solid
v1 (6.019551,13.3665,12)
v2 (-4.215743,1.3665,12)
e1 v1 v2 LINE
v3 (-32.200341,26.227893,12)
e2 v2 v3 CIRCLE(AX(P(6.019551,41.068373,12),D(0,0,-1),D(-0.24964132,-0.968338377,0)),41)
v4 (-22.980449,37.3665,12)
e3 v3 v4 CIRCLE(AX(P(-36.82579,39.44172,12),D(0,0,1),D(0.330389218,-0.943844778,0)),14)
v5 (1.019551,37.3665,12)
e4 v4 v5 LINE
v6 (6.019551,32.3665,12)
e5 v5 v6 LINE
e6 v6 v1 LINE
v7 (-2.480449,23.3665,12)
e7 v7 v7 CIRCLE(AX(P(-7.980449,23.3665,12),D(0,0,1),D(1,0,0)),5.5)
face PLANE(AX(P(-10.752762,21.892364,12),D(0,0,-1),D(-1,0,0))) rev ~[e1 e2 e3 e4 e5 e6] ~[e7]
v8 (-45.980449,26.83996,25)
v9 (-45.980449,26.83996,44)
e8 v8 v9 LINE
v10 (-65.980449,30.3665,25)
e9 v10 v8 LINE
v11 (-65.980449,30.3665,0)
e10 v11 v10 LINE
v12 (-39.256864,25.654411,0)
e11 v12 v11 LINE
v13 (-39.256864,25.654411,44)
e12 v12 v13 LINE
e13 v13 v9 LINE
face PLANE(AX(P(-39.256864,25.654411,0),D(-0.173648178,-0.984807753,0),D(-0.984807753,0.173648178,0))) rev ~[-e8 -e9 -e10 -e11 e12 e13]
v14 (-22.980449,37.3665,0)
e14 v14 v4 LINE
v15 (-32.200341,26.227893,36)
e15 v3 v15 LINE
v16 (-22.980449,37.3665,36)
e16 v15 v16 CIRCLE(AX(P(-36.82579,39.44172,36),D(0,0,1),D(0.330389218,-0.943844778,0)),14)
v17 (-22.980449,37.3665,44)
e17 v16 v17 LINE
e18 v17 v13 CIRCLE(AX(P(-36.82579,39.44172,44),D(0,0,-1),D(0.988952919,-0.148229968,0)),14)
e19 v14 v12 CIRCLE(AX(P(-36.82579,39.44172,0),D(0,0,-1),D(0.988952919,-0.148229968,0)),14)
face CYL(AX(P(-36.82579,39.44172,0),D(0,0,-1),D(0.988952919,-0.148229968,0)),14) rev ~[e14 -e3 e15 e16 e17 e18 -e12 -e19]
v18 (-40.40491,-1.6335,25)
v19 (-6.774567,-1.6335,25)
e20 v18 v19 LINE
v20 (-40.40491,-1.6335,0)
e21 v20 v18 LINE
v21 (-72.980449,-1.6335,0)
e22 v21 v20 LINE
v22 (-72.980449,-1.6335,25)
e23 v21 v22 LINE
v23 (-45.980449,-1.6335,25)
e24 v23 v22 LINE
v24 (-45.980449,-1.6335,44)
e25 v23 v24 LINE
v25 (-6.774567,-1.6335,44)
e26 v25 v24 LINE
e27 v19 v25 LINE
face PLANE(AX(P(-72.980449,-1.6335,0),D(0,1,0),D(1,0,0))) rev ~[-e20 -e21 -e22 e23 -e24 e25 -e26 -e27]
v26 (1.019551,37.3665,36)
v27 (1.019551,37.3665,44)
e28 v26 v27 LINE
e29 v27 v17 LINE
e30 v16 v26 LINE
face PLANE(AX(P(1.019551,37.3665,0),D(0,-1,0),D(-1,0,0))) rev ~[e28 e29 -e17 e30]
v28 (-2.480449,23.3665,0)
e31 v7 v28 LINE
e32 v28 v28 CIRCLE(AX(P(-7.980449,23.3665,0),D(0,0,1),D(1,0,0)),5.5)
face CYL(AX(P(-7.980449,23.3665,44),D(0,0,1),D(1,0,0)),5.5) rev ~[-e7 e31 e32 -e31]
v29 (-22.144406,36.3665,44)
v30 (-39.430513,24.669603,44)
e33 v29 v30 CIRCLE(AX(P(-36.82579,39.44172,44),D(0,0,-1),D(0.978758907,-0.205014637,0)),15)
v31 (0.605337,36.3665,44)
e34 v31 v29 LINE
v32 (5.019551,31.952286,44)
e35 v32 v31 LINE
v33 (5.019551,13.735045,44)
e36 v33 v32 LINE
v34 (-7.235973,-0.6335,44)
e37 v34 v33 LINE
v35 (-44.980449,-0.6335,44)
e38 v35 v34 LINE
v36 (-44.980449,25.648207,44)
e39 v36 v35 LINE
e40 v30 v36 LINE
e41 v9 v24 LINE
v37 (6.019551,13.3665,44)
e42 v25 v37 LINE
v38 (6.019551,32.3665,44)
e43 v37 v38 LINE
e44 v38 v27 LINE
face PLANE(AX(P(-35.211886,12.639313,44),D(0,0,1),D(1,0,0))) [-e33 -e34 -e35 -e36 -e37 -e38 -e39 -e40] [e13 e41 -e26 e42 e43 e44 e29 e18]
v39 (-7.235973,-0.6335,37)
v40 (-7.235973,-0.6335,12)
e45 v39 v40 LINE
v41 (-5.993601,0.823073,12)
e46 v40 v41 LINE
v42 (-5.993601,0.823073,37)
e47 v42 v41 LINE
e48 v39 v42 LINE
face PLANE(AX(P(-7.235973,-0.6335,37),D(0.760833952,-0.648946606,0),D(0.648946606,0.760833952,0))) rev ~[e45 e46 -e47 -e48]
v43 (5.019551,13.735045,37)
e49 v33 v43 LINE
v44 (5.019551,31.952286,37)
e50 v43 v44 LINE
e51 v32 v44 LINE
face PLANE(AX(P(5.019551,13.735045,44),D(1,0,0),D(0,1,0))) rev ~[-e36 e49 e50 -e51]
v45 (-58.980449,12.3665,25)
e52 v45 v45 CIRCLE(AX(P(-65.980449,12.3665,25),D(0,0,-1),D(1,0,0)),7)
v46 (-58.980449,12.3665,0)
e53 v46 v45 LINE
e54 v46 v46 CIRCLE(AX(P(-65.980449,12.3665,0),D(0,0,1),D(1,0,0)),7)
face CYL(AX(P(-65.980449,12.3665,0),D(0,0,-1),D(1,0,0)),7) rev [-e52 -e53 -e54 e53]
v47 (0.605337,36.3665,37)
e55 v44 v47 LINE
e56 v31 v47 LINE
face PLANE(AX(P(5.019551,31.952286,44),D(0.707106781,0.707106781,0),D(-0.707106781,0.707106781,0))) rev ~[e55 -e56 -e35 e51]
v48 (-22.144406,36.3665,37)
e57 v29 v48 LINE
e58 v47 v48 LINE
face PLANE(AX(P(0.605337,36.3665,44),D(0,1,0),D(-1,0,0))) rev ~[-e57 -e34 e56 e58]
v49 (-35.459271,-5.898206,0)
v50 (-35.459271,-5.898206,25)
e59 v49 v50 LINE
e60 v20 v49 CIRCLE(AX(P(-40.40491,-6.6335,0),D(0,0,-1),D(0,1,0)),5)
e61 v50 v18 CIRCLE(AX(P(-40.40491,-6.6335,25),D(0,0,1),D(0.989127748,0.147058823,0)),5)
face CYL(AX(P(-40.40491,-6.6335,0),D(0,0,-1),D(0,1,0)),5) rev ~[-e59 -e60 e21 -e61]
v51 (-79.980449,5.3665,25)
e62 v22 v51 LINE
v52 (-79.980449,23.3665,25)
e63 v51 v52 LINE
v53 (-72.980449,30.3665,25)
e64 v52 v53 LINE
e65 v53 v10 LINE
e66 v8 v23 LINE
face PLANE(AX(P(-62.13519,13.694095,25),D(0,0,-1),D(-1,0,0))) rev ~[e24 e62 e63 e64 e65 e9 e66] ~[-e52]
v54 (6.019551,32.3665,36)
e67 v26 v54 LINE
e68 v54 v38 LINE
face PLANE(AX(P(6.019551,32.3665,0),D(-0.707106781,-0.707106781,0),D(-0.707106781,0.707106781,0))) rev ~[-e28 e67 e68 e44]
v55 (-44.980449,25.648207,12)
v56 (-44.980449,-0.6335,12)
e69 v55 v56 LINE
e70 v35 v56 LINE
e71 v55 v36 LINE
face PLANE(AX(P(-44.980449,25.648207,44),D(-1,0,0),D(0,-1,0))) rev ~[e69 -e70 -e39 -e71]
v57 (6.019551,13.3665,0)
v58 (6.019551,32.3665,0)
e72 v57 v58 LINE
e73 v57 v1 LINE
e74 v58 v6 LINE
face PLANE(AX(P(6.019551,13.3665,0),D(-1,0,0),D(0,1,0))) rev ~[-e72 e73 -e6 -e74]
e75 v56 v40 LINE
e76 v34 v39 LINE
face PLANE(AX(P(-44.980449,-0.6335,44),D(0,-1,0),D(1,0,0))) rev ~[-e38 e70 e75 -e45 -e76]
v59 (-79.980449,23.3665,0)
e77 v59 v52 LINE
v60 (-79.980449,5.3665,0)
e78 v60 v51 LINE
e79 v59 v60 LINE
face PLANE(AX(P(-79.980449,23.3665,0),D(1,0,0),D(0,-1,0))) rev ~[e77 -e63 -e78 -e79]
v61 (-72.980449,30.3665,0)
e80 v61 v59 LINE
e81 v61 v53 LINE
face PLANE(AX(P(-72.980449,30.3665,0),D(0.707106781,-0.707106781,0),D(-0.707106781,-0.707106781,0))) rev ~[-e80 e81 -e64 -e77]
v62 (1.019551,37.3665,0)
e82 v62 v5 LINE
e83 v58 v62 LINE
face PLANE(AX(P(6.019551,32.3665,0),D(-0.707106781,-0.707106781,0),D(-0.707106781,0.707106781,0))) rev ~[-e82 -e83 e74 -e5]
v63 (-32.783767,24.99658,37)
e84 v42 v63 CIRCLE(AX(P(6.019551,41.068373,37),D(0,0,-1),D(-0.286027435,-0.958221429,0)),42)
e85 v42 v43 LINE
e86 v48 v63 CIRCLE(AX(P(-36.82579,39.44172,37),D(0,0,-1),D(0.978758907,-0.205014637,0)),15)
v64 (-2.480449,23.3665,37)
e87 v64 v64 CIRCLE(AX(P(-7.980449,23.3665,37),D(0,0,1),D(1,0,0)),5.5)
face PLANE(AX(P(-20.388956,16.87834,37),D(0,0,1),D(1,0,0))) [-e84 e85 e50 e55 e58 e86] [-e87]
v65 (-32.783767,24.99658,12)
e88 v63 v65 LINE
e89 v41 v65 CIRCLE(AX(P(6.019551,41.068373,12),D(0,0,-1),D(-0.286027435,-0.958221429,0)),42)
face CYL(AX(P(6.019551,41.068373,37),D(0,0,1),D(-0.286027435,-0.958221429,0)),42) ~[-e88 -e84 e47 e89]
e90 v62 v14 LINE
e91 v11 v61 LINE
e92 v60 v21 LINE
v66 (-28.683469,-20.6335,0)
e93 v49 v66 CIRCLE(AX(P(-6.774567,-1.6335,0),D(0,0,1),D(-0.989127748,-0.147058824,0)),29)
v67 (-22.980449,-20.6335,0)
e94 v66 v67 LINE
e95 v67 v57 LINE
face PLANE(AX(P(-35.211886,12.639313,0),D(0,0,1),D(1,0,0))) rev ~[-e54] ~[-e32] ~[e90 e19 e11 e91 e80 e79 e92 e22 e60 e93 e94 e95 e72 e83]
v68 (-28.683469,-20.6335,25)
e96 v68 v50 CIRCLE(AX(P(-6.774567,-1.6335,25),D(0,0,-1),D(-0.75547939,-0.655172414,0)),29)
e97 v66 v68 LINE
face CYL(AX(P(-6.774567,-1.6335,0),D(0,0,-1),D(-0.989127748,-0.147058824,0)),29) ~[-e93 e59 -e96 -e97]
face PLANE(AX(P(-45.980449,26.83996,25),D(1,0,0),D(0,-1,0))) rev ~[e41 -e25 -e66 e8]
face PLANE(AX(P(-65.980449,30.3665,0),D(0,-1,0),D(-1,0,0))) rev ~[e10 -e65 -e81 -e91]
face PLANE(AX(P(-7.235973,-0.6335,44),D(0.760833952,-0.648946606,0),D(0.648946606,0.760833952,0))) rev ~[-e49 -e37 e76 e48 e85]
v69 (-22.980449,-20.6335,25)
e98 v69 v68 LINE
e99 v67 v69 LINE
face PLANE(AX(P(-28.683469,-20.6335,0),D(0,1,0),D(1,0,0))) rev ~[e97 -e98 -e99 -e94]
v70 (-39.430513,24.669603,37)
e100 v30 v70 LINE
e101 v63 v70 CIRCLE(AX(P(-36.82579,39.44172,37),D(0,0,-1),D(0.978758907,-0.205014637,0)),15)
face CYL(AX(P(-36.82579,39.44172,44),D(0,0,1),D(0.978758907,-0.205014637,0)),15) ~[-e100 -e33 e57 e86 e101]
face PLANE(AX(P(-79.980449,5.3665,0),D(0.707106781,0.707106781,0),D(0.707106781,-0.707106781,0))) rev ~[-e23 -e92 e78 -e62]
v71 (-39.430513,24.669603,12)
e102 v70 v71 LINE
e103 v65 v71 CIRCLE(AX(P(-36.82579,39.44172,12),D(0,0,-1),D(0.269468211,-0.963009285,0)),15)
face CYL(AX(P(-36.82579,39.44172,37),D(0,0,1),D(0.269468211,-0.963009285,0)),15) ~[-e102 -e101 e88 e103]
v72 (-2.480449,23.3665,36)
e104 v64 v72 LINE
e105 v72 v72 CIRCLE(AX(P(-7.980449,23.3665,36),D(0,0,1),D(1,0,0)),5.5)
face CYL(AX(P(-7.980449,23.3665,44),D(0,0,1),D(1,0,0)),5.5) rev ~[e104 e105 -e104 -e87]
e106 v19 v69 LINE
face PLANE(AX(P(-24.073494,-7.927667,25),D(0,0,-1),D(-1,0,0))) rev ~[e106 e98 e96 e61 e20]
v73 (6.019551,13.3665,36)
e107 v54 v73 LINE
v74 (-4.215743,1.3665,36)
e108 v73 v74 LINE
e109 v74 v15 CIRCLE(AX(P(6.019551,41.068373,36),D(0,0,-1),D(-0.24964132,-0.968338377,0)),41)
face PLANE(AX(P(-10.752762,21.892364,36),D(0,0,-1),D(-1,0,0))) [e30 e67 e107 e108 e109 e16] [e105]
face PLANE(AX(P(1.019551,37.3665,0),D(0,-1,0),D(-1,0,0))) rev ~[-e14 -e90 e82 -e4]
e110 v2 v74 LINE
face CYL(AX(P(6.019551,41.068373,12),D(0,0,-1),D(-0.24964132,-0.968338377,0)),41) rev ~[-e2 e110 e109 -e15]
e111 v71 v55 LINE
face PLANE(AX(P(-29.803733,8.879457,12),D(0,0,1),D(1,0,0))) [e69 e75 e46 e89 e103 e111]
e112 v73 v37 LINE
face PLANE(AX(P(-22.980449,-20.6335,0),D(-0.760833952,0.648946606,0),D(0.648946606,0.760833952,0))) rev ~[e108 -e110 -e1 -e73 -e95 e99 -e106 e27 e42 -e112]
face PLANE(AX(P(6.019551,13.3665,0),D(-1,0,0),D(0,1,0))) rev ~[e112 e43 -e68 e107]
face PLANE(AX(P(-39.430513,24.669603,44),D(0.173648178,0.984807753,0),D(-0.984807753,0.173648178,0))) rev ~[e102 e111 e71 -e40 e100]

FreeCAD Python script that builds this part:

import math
import FreeCAD as App
import Part
import Sketcher
Q = App.Units.Quantity


def add_polygon(sketch, points):
    """Adds a closed chain of lines whose ends are joined by coincident constraints."""
    first, n = sketch.GeometryCount, len(points)
    for a, b in zip(points, points[1:] + points[:1]):
        sketch.addGeometry(Part.LineSegment(App.Vector(*a, 0), App.Vector(*b, 0)), False)
    for i in range(n):
        sketch.addConstraint(Sketcher.Constraint("Coincident", first + i, 2, first + (i + 1) % n, 1))

doc = App.newDocument("Part")
body = doc.addObject("PartDesign::Body", "Body")

sketch1 = body.newObject("Sketcher::SketchObject", "Sketch")
sketch1.AttachmentSupport = (doc.getObject("XY_Plane"), [""])
sketch1.MapMode = "FlatFace"
sketch1.addGeometry([
    Part.ArcOfCircle(Part.Circle(App.Vector(-40, -7, 0), App.Vector(0, 0, 1), 5), math.radians(8), math.radians(90)),
    Part.ArcOfCircle(Part.Circle(App.Vector(-7, -2, 0), App.Vector(0, 0, 1), 29), math.radians(-172), math.radians(-139)),
    Part.LineSegment(App.Vector(-29, -21, 0), App.Vector(-23, -21, 0)),
    Part.LineSegment(App.Vector(-23, -21, 0), App.Vector(6, 13, 0)),
    Part.LineSegment(App.Vector(6, 13, 0), App.Vector(6, 32, 0)),
    Part.LineSegment(App.Vector(6, 32, 0), App.Vector(1, 37, 0)),
    Part.LineSegment(App.Vector(1, 37, 0), App.Vector(-23, 37, 0)),
    Part.ArcOfCircle(Part.Circle(App.Vector(-37, 39, 0), App.Vector(0, 0, 1), 14), math.radians(-100), math.radians(-9)),
    Part.LineSegment(App.Vector(-39, 26, 0), App.Vector(-66, 30, 0)),
    Part.LineSegment(App.Vector(-66, 30, 0), App.Vector(-73, 30, 0)),
    Part.LineSegment(App.Vector(-73, 30, 0), App.Vector(-80, 23, 0)),
    Part.LineSegment(App.Vector(-80, 23, 0), App.Vector(-80, 5, 0)),
    Part.LineSegment(App.Vector(-80, 5, 0), App.Vector(-73, -2, 0)),
    Part.LineSegment(App.Vector(-73, -2, 0), App.Vector(-40, -2, 0)),
    Part.Circle(App.Vector(-66, 12, 0), App.Vector(0, 0, 1), 7),
], False)
sketch1.addConstraint([
    Sketcher.Constraint("Tangent", 0, 1, 1, 1),
    Sketcher.Constraint("Coincident", 1, 2, 2, 1),
    Sketcher.Constraint("Coincident", 2, 2, 3, 1),
    Sketcher.Constraint("Coincident", 3, 2, 4, 1),
    Sketcher.Constraint("Coincident", 4, 2, 5, 1),
    Sketcher.Constraint("Coincident", 5, 2, 6, 1),
    Sketcher.Constraint("Coincident", 6, 2, 7, 2),
    Sketcher.Constraint("Tangent", 7, 1, 8, 1),
    Sketcher.Constraint("Coincident", 8, 2, 9, 1),
    Sketcher.Constraint("Coincident", 9, 2, 10, 1),
    Sketcher.Constraint("Coincident", 10, 2, 11, 1),
    Sketcher.Constraint("Coincident", 11, 2, 12, 1),
    Sketcher.Constraint("Coincident", 12, 2, 13, 1),
    Sketcher.Constraint("Tangent", 13, 2, 0, 2),
    Sketcher.Constraint("Horizontal", 2),
    Sketcher.Constraint("Vertical", 4),
    Sketcher.Constraint("Horizontal", 6),
    Sketcher.Constraint("Horizontal", 9),
    Sketcher.Constraint("Vertical", 11),
    Sketcher.Constraint("Horizontal", 13),
    Sketcher.Constraint("Perpendicular", 5, 10),
    Sketcher.Constraint("Perpendicular", 10, 12),
    Sketcher.Constraint("Horizontal", 1, 3, 12, 2),
    Sketcher.Constraint("Vertical", 2, 2, 6, 2),
    Sketcher.Constraint("Vertical", 14, 3, 8, 2),
    Sketcher.Constraint("Vertical", 9, 2, 12, 2),
    Sketcher.Constraint("Equal", 10, 12),
    Sketcher.Constraint("Diameter", 14, Q("14 mm")),
    Sketcher.Constraint("Radius", 0, Q("5 mm")),
    Sketcher.Constraint("Radius", 1, Q("29 mm")),
    Sketcher.Constraint("Radius", 7, Q("14 mm")),
    Sketcher.Constraint("DistanceX", 6, 2, 6, 1, Q("24 mm")),
    Sketcher.Constraint("DistanceX", 9, 2, 9, 1, Q("7 mm")),
    Sketcher.Constraint("DistanceY", 4, 1, 4, 2, Q("19 mm")),
    Sketcher.Constraint("DistanceY", 11, 2, 11, 1, Q("18 mm")),
    Sketcher.Constraint("Angle", 8, Q("170 deg")),
    Sketcher.Constraint("DistanceY", 0, 3, 14, 3, Q("19 mm")),
    Sketcher.Constraint("DistanceY", 1, 2, 0, 3, Q("14 mm")),
    Sketcher.Constraint("DistanceX", 14, 3, 2, 2, Q("43 mm")),
    Sketcher.Constraint("DistanceY", 1, 3, 3, 2, Q("15 mm")),
    Sketcher.Constraint("DistanceX", 2, 2, 3, 2, Q("29 mm")),
    Sketcher.Constraint("DistanceY", 14, 3, 8, 2, Q("18 mm")),
    Sketcher.Constraint("DistanceX", 2, 1, 2, 2, Q("5.70302 mm")),
    Sketcher.Constraint("DistanceY", 0, 3, -1, 1, Q("6.6335 mm")),
    Sketcher.Constraint("DistanceX", 0, 3, -1, 1, Q("40.40491 mm")),
])
pad1 = body.newObject("PartDesign::Pad", "Pad")
pad1.Profile = sketch1
pad1.Length = 44

sketch2 = body.newObject("Sketcher::SketchObject", "Sketch001")
sketch2.AttachmentSupport = (doc.getObject("XY_Plane"), [""])
sketch2.MapMode = "FlatFace"
sketch2.AttachmentOffset = App.Placement(App.Vector(0, 0, 44), App.Rotation())
sketch2.addGeometry(Part.Circle(App.Vector(-8, 23, 0), App.Vector(0, 0, 1), 6), False)
sketch2.addConstraint([
    Sketcher.Constraint("Diameter", 0, Q("11 mm")),
    Sketcher.Constraint("DistanceY", -1, 1, 0, 3, Q("23.3665 mm")),
    Sketcher.Constraint("DistanceX", 0, 3, -1, 1, Q("7.980449 mm")),
])
pocket1 = body.newObject("PartDesign::Pocket", "Pocket")
pocket1.Profile = sketch2
pocket1.Type = "ThroughAll"

sketch3 = body.newObject("Sketcher::SketchObject", "Sketch002")
sketch3.AttachmentSupport = (doc.getObject("XY_Plane"), [""])
sketch3.MapMode = "FlatFace"
sketch3.AttachmentOffset = App.Placement(App.Vector(0, 0, 25), App.Rotation())
add_polygon(sketch3, [(-46, -2), (-46, 27), (-66, 30), (-73, 30), (-80, 23), (-80, 5), (-73, -2)])
sketch3.addGeometry(Part.LineSegment(App.Vector(-7, -2, 0), App.Vector(-40, -2, 0)), False)
sketch3.addGeometry(Part.ArcOfCircle(Part.Circle(App.Vector(-40, -7, 0), App.Vector(0, 0, 1), 5), math.radians(8), math.radians(90)), False)
sketch3.addGeometry(Part.ArcOfCircle(Part.Circle(App.Vector(-7, -2, 0), App.Vector(0, 0, 1), 29), math.radians(-172), math.radians(-139)), False)
sketch3.addGeometry(Part.LineSegment(App.Vector(-29, -21, 0), App.Vector(-23, -21, 0)), False)
sketch3.addGeometry(Part.LineSegment(App.Vector(-23, -21, 0), App.Vector(-7, -2, 0)), False)
sketch3.addConstraint([
    Sketcher.Constraint("Tangent", 7, 2, 8, 2),
    Sketcher.Constraint("Tangent", 8, 1, 9, 1),
    Sketcher.Constraint("Coincident", 9, 2, 10, 1),
    Sketcher.Constraint("Coincident", 10, 2, 11, 1),
    Sketcher.Constraint("Coincident", 11, 2, 7, 1),
    Sketcher.Constraint("Vertical", 0),
    Sketcher.Constraint("Horizontal", 2),
    Sketcher.Constraint("Vertical", 4),
    Sketcher.Constraint("Horizontal", 6),
    Sketcher.Constraint("Horizontal", 7),
    Sketcher.Constraint("Horizontal", 10),
    Sketcher.Constraint("Coincident", 11, 2, 9, 3),
    Sketcher.Constraint("Perpendicular", 3, 5),
    Sketcher.Constraint("Horizontal", 9, 3, 5, 2),
    Sketcher.Constraint("Vertical", 2, 2, 5, 2),
    Sketcher.Constraint("Equal", 3, 5),
    Sketcher.Constraint("Radius", 8, Q("5 mm")),
    Sketcher.Constraint("Radius", 9, Q("29 mm")),
    Sketcher.Constraint("DistanceX", 2, 2, 2, 1, Q("7 mm")),
    Sketcher.Constraint("DistanceX", 6, 1, 6, 2, Q("27 mm")),
    Sketcher.Constraint("DistanceY", 4, 2, 4, 1, Q("18 mm")),
    Sketcher.Constraint("Angle", 1, Q("170 deg")),
    Sketcher.Constraint("DistanceY", 8, 3, 1, 2, Q("37 mm")),
    Sketcher.Constraint("DistanceY", 9, 2, 8, 3, Q("14 mm")),
    Sketcher.Constraint("DistanceX", 10, 1, 10, 2, Q("5.70302 mm")),
    Sketcher.Constraint("DistanceY", 8, 3, -1, 1, Q("6.6335 mm")),
    Sketcher.Constraint("DistanceX", 8, 3, -1, 1, Q("40.40491 mm")),
    Sketcher.Constraint("DistanceX", 0, 2, -1, 1, Q("45.980449 mm")),
])
pocket2 = body.newObject("PartDesign::Pocket", "Pocket001")
pocket2.Profile = sketch3
pocket2.Length = 19
pocket2.Reversed = True

sketch4 = body.newObject("Sketcher::SketchObject", "Sketch003")
sketch4.AttachmentSupport = (doc.getObject("XY_Plane"), [""])
sketch4.MapMode = "FlatFace"
sketch4.AttachmentOffset = App.Placement(App.Vector(0, 0, 12), App.Rotation())
sketch4.addGeometry([
    Part.LineSegment(App.Vector(6, 13, 0), App.Vector(-4, 1, 0)),
    Part.ArcOfCircle(Part.Circle(App.Vector(6, 41, 0), App.Vector(0, 0, 1), 41), math.radians(-159), math.radians(-104)),
    Part.ArcOfCircle(Part.Circle(App.Vector(-37, 39, 0), App.Vector(0, 0, 1), 14), math.radians(-71), math.radians(-9)),
    Part.LineSegment(App.Vector(-23, 37, 0), App.Vector(1, 37, 0)),
    Part.LineSegment(App.Vector(1, 37, 0), App.Vector(6, 32, 0)),
    Part.LineSegment(App.Vector(6, 32, 0), App.Vector(6, 13, 0)),
], False)
sketch4.addConstraint([
    Sketcher.Constraint("Coincident", 0, 2, 1, 2),
    Sketcher.Constraint("Coincident", 1, 1, 2, 1),
    Sketcher.Constraint("Coincident", 2, 2, 3, 1),
    Sketcher.Constraint("Coincident", 3, 2, 4, 1),
    Sketcher.Constraint("Coincident", 4, 2, 5, 1),
    Sketcher.Constraint("Coincident", 5, 2, 0, 1),
    Sketcher.Constraint("Horizontal", 3),
    Sketcher.Constraint("Vertical", 5),
    Sketcher.Constraint("Vertical", 1, 3, 4, 2),
    Sketcher.Constraint("Radius", 1, Q("41 mm")),
    Sketcher.Constraint("Radius", 2, Q("14 mm")),
    Sketcher.Constraint("DistanceX", 3, 1, 3, 2, Q("24 mm")),
    Sketcher.Constraint("DistanceY", 5, 2, 5, 1, Q("19 mm")),
    Sketcher.Constraint("Angle", 4, Q("-45 deg")),
    Sketcher.Constraint("DistanceX", 2, 2, 1, 3, Q("29 mm")),
    Sketcher.Constraint("DistanceY", 0, 2, 2, 2, Q("36 mm")),
    Sketcher.Constraint("DistanceY", -1, 1, 0, 2, Q("1.3665 mm")),
    Sketcher.Constraint("DistanceX", -1, 1, 1, 3, Q("6.019551 mm")),
    Sketcher.Constraint("DistanceX", 2, 3, -1, 1, Q("36.82579 mm")),
    Sketcher.Constraint("DistanceX", 1, 1, -1, 1, Q("32.200341 mm")),
])
pocket3 = body.newObject("PartDesign::Pocket", "Pocket002")
pocket3.Profile = sketch4
pocket3.Length = 24
pocket3.Reversed = True

sketch5 = body.newObject("Sketcher::SketchObject", "Sketch004")
sketch5.AttachmentSupport = (doc.getObject("XY_Plane"), [""])
sketch5.MapMode = "FlatFace"
sketch5.AttachmentOffset = App.Placement(App.Vector(0, 0, 44), App.Rotation())
sketch5.addGeometry([
    Part.LineSegment(App.Vector(-45, 26, 0), App.Vector(-45, -1, 0)),
    Part.LineSegment(App.Vector(-45, -1, 0), App.Vector(-7, -1, 0)),
    Part.LineSegment(App.Vector(-7, -1, 0), App.Vector(5, 14, 0)),
    Part.LineSegment(App.Vector(5, 14, 0), App.Vector(5, 32, 0)),
    Part.LineSegment(App.Vector(5, 32, 0), App.Vector(1, 36, 0)),
    Part.LineSegment(App.Vector(1, 36, 0), App.Vector(-22, 36, 0)),
    Part.ArcOfCircle(Part.Circle(App.Vector(-37, 39, 0), App.Vector(0, 0, 1), 15), math.radians(-100), math.radians(-12)),
    Part.LineSegment(App.Vector(-39, 25, 0), App.Vector(-45, 26, 0)),
], False)
sketch5.addConstraint([
    Sketcher.Constraint("Coincident", 0, 2, 1, 1),
    Sketcher.Constraint("Coincident", 1, 2, 2, 1),
    Sketcher.Constraint("Coincident", 2, 2, 3, 1),
    Sketcher.Constraint("Coincident", 3, 2, 4, 1),
    Sketcher.Constraint("Coincident", 4, 2, 5, 1),
    Sketcher.Constraint("Coincident", 5, 2, 6, 2),
    Sketcher.Constraint("Tangent", 6, 1, 7, 1),
    Sketcher.Constraint("Coincident", 7, 2, 0, 1),
    Sketcher.Constraint("Vertical", 0),
    Sketcher.Constraint("Horizontal", 1),
    Sketcher.Constraint("Vertical", 3),
    Sketcher.Constraint("Horizontal", 5),
    Sketcher.Constraint("Radius", 6, Q("15 mm")),
    Sketcher.Constraint("Angle", 4, Q("135 deg")),
    Sketcher.Constraint("Angle", 7, Q("170 deg")),
    Sketcher.Constraint("DistanceX", 0, 2, 2, 2, Q("50 mm")),
    Sketcher.Constraint("DistanceY", 1, 2, 4, 2, Q("37 mm")),
    Sketcher.Constraint("DistanceY", 3, 1, 3, 2, Q("18.217241 mm")),
    Sketcher.Constraint("DistanceY", 0, 2, -1, 1, Q("0.6335 mm")),
    Sketcher.Constraint("Distance", 4, Q("6.242641 mm")),
    Sketcher.Constraint("DistanceX", 1, 1, 1, 2, Q("37.744476 mm")),
    Sketcher.Constraint("DistanceX", 5, 2, 5, 1, Q("22.749744 mm")),
    Sketcher.Constraint("DistanceY", 0, 2, 0, 1, Q("26.281707 mm")),
    Sketcher.Constraint("DistanceX", 6, 3, -1, 1, Q("36.82579 mm")),
])
pocket4 = body.newObject("PartDesign::Pocket", "Pocket003")
pocket4.Profile = sketch5
pocket4.Length = 7

sketch6 = body.newObject("Sketcher::SketchObject", "Sketch005")
sketch6.AttachmentSupport = (doc.getObject("XY_Plane"), [""])
sketch6.MapMode = "FlatFace"
sketch6.AttachmentOffset = App.Placement(App.Vector(0, 0, 37), App.Rotation())
sketch6.addGeometry([
    Part.LineSegment(App.Vector(-7.2, -0.6, 0), App.Vector(-6, 0.8, 0)),
    Part.ArcOfCircle(Part.Circle(App.Vector(6, 41.1, 0), App.Vector(0, 0, 1), 42), math.radians(-158), math.radians(-107)),
    Part.ArcOfCircle(Part.Circle(App.Vector(-36.8, 39.4, 0), App.Vector(0, 0, 1), 15), math.radians(-100), math.radians(-74)),
    Part.LineSegment(App.Vector(-39.4, 24.7, 0), App.Vector(-45, 25.6, 0)),
    Part.LineSegment(App.Vector(-45, 25.6, 0), App.Vector(-45, -0.6, 0)),
    Part.LineSegment(App.Vector(-45, -0.6, 0), App.Vector(-7.2, -0.6, 0)),
], False)
sketch6.addConstraint([
    Sketcher.Constraint("Coincident", 0, 2, 1, 2),
    Sketcher.Constraint("Coincident", 1, 1, 2, 2),
    Sketcher.Constraint("Tangent", 2, 1, 3, 1),
    Sketcher.Constraint("Coincident", 3, 2, 4, 1),
    Sketcher.Constraint("Coincident", 4, 2, 5, 1),
    Sketcher.Constraint("Coincident", 5, 2, 0, 1),
    Sketcher.Constraint("Vertical", 4),
    Sketcher.Constraint("Horizontal", 5),
    Sketcher.Constraint("Radius", 1, Q("42 mm")),
    Sketcher.Constraint("Radius", 2, Q("15 mm")),
    Sketcher.Constraint("Angle", 3, Q("170 deg")),
    Sketcher.Constraint("DistanceX", 3, 2, 1, 3, Q("51 mm")),
    Sketcher.Constraint("DistanceX", 0, 2, -1, 1, Q("5.993601 mm")),
    Sketcher.Constraint("DistanceY", 4, 2, -1, 1, Q("0.6335 mm")),
    Sketcher.Constraint("DistanceY", 0, 2, 1, 3, Q("40.2453 mm")),
    Sketcher.Constraint("DistanceX", 5, 1, 5, 2, Q("37.744476 mm")),
    Sketcher.Constraint("DistanceY", 4, 2, 4, 1, Q("26.281707 mm")),
    Sketcher.Constraint("DistanceX", 2, 3, -1, 1, Q("36.82579 mm")),
    Sketcher.Constraint("DistanceY", 0, 2, 2, 1, Q("23.84653 mm")),
])
pocket5 = body.newObject("PartDesign::Pocket", "Pocket004")
pocket5.Profile = sketch6
pocket5.Length = 25

doc.recompute()
